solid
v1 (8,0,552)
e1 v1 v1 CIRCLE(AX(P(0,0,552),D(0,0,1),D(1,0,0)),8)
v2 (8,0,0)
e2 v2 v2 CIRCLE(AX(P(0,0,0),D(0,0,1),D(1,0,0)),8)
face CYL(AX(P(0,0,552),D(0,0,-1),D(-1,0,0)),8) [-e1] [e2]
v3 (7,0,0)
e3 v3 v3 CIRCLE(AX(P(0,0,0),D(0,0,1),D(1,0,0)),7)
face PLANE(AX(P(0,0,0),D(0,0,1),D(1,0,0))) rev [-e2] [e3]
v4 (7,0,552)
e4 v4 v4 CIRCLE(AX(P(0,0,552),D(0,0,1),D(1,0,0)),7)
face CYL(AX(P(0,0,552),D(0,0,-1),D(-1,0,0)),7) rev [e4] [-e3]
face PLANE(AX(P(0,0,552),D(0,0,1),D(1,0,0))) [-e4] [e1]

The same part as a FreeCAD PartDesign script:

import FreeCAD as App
import Part
import Sketcher
from FreeCAD import Vector
Q = App.Units.Quantity

doc = App.newDocument("Part")
body = doc.addObject("PartDesign::Body", "Body")

# Sketch on XY plane
sketch1 = body.newObject("Sketcher::SketchObject", "Sketch")
sketch1.AttachmentSupport = (doc.getObject("XY_Plane"), [""])
sketch1.MapMode = "FlatFace"
sketch1.addGeometry([
    Part.Circle(Vector(0, 0, 0), Vector(0, 0, 1), 8),
    Part.Circle(Vector(0, 0, 0), Vector(0, 0, 1), 7),
], False)
sketch1.addConstraint([
    Sketcher.Constraint("Coincident", 0, 3, -1, 1),
    Sketcher.Constraint("Coincident", 1, 3, -1, 1),
    Sketcher.Constraint("Diameter", 0, Q("16 mm")),
    Sketcher.Constraint("Diameter", 1, Q("14 mm")),
])
pad1 = body.newObject("PartDesign::Pad", "Pad")
pad1.Profile = sketch1
pad1.Length = 552

doc.recompute()
